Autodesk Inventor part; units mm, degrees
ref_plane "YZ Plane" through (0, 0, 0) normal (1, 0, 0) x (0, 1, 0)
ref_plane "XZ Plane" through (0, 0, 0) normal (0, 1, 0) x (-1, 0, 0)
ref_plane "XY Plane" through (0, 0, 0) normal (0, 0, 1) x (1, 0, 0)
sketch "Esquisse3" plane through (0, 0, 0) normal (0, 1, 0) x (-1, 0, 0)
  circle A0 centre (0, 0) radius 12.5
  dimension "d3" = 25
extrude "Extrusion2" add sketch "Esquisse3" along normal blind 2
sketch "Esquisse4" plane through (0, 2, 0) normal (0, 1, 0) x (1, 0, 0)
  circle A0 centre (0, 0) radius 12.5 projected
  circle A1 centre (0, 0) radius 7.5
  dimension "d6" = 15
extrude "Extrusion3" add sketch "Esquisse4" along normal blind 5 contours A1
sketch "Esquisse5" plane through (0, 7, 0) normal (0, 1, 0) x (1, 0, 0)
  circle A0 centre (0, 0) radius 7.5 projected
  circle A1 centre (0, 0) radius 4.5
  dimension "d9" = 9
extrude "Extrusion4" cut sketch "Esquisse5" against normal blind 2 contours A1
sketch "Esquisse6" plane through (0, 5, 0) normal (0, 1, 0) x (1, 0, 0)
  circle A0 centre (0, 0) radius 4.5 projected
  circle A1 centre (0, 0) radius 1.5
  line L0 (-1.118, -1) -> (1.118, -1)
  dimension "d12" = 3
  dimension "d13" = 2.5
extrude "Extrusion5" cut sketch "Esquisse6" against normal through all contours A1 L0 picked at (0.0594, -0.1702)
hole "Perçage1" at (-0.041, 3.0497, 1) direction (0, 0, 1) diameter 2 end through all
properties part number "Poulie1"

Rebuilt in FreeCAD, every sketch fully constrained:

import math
import FreeCAD as App
import Part
import Sketcher

V = App.Vector
Q = App.Units.Quantity

doc = App.newDocument("Part")
params = doc.addObject("Spreadsheet::Sheet", "Params")
for row, (alias, value) in enumerate([
    ("sketch1_diameter", "25 mm"),
    ("pad1_length", "2 mm"),
    ("sketch2_diameter", "15 mm"),
    ("pad2_length", "5 mm"),
    ("sketch3_diameter", "9 mm"),
    ("pocket1_length", "2 mm"),
    ("sketch4_radius", "1.5 mm"),
    ("sketch5_diameter", "2 mm"),
    ("hole_diameter", "2 mm"),
], start=1):
    params.set(f"A{row}", alias)
    params.set(f"B{row}", "=" + value)
    params.setAlias(f"B{row}", alias)

body = doc.addObject("PartDesign::Body", "Body")

sketch1 = body.newObject("Sketcher::SketchObject", "Sketch")
sketch1.AttachmentSupport = (doc.getObject("XZ_Plane"), [""])
sketch1.MapMode = "FlatFace"
sketch1.addGeometry(Part.Circle(V(0, 0, 0), V(0, 0, 1), 12.5), False)
sketch1.addConstraint([
    Sketcher.Constraint("Coincident", 0, 3, -1, 1),
    Sketcher.Constraint("Diameter", 0, Q("25 mm")),
])
sketch1.setExpression("Constraints[1]", "Params.sketch1_diameter")
pad1 = body.newObject("PartDesign::Pad", "Pad")
pad1.Profile = sketch1
pad1.setExpression("Length", "Params.pad1_length")
pad1.Reversed = True

sketch2 = body.newObject("Sketcher::SketchObject", "Sketch001")
sketch2.AttachmentSupport = (doc.getObject("XZ_Plane"), [""])
sketch2.MapMode = "FlatFace"
sketch2.AttachmentOffset = App.Placement(V(0, 0, -2), App.Rotation())
sketch2.addGeometry(Part.Circle(V(0, 0, 0), V(0, 0, 1), 7.5), False)
sketch2.addConstraint([
    Sketcher.Constraint("Coincident", 0, 3, -1, 1),
    Sketcher.Constraint("Diameter", 0, Q("15 mm")),
])
sketch2.setExpression("Constraints[1]", "Params.sketch2_diameter")
pad2 = body.newObject("PartDesign::Pad", "Pad001")
pad2.Profile = sketch2
pad2.setExpression("Length", "Params.pad2_length")
pad2.Reversed = True

sketch3 = body.newObject("Sketcher::SketchObject", "Sketch002")
sketch3.AttachmentSupport = (doc.getObject("XZ_Plane"), [""])
sketch3.MapMode = "FlatFace"
sketch3.AttachmentOffset = App.Placement(V(0, 0, -7), App.Rotation())
sketch3.addGeometry(Part.Circle(V(0, 0, 0), V(0, 0, 1), 4.5), False)
sketch3.addConstraint([
    Sketcher.Constraint("Coincident", 0, 3, -1, 1),
    Sketcher.Constraint("Diameter", 0, Q("9 mm")),
])
sketch3.setExpression("Constraints[1]", "Params.sketch3_diameter")
pocket1 = body.newObject("PartDesign::Pocket", "Pocket")
pocket1.Profile = sketch3
pocket1.setExpression("Length", "Params.pocket1_length")
pocket1.Reversed = True

sketch4 = body.newObject("Sketcher::SketchObject", "Sketch003")
sketch4.AttachmentSupport = (doc.getObject("XZ_Plane"), [""])
sketch4.MapMode = "FlatFace"
sketch4.AttachmentOffset = App.Placement(V(0, 0, -5), App.Rotation())
sketch4.addGeometry([
    Part.ArcOfCircle(Part.Circle(V(0, 0, 0), V(0, 0, 1), 1.5), math.radians(138.18882), math.radians(401.81118)),
    Part.LineSegment(V(1.118, 1, 0), V(-1.118, 1, 0)),
], False)
sketch4.addConstraint([
    Sketcher.Constraint("Coincident", 0, 1, 1, 2),
    Sketcher.Constraint("Coincident", 1, 1, 0, 2),
    Sketcher.Constraint("Horizontal", 1),
    Sketcher.Constraint("Coincident", 0, 3, -1, 1),
    Sketcher.Constraint("Radius", 0, Q("1.5 mm")),
    Sketcher.Constraint("DistanceY", -1, 1, 0, 1, Q("1 mm")),
])
sketch4.setExpression("Constraints[4]", "Params.sketch4_radius")
pocket2 = body.newObject("PartDesign::Pocket", "Pocket001")
pocket2.Profile = sketch4
pocket2.Type = "ThroughAll"
pocket2.Reversed = True

sketch5 = body.newObject("Sketcher::SketchObject", "Sketch004")
sketch5.AttachmentSupport = (doc.getObject("XY_Plane"), [""])
sketch5.MapMode = "FlatFace"
sketch5.AttachmentOffset = App.Placement(V(0, 0, 1), App.Rotation())
sketch5.addGeometry(Part.Circle(V(-0.041, 3.0497, 0), V(0, 0, 1), 1), False)
sketch5.addConstraint([
    Sketcher.Constraint("Diameter", 0, Q("2 mm")),
    Sketcher.Constraint("DistanceX", 0, 3, -1, 1, Q("0.041 mm")),
    Sketcher.Constraint("DistanceY", -1, 1, 0, 3, Q("3.0497 mm")),
])
sketch5.setExpression("Constraints[0]", "Params.sketch5_diameter")
doc.recompute()
hole = body.newObject("PartDesign::Hole", "Hole")
hole.Profile = sketch5
hole.ThreadType = "None"
hole.setExpression("Diameter", "Params.hole_diameter")
hole.DepthType = "ThroughAll"
hole.Reversed = True

doc.recompute()
